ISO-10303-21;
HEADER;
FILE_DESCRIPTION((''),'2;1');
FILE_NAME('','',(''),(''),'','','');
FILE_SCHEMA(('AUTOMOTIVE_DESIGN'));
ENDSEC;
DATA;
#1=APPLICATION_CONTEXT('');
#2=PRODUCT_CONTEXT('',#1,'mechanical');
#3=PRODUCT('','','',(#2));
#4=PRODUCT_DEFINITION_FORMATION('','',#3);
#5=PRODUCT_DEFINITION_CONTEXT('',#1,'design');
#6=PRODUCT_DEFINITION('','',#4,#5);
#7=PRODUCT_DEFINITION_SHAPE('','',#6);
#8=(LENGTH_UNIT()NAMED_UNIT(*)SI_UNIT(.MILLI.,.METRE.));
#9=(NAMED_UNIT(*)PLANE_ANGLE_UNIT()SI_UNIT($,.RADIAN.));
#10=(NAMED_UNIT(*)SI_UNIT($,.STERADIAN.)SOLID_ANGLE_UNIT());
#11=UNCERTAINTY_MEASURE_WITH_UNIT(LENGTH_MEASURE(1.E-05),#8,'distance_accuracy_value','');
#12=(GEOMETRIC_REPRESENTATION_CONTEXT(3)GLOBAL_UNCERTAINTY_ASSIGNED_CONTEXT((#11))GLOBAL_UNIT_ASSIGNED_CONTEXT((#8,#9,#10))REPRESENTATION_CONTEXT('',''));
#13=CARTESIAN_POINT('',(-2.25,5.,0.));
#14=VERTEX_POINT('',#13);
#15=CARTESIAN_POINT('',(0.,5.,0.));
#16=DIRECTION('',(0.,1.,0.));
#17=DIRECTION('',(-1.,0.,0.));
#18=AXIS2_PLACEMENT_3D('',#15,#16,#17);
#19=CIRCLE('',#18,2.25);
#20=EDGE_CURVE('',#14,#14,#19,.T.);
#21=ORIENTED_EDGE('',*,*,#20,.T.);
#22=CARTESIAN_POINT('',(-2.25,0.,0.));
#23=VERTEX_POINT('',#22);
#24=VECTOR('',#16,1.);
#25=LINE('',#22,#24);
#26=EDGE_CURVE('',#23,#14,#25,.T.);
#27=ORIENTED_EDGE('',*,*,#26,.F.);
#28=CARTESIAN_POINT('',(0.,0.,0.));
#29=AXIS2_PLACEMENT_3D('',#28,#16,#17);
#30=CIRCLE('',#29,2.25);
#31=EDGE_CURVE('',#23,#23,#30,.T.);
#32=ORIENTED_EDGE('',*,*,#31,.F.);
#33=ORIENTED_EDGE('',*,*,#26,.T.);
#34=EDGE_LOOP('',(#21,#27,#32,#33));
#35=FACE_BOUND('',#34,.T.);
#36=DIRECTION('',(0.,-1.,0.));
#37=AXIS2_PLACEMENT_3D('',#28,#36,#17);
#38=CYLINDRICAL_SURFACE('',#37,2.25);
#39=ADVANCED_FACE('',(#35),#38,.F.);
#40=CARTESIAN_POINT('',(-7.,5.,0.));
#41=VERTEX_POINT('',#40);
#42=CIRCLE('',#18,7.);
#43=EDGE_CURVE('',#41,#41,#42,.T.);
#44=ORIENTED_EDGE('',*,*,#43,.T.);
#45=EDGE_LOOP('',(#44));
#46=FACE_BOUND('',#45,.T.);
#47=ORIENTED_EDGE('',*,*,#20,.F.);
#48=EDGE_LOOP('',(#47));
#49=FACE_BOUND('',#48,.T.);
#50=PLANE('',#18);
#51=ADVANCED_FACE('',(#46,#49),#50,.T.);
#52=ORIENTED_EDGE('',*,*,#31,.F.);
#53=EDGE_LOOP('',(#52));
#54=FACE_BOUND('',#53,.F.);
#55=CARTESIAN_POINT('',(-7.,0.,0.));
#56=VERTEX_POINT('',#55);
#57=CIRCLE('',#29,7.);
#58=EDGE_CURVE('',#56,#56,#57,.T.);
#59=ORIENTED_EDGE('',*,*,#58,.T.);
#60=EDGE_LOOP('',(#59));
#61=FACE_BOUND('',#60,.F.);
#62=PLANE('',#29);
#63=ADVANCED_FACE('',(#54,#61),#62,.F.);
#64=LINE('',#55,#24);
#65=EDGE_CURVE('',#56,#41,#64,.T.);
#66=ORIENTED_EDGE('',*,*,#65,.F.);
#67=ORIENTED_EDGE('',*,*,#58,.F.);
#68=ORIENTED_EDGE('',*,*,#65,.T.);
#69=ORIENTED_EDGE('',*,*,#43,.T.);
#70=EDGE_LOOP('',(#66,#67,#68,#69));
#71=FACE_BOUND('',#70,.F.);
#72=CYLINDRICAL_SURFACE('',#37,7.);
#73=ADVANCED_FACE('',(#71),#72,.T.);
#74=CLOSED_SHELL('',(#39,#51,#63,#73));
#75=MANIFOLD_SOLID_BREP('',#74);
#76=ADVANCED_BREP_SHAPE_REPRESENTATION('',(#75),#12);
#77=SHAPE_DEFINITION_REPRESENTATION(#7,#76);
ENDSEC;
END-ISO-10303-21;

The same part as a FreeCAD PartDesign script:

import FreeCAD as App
import Part
import Sketcher

V = App.Vector

doc = App.newDocument("Part")
body = doc.addObject("PartDesign::Body", "Body")

# Sketch on XZ plane
sketch1 = body.newObject("Sketcher::SketchObject", "Sketch")
sketch1.AttachmentSupport = (doc.getObject("XZ_Plane"), [""])
sketch1.MapMode = "FlatFace"
sketch1.addGeometry(Part.Circle(V(0, 0, 0), V(0, 0, 1), 7), False)
sketch1.addGeometry(Part.Circle(V(0, 0, 0), V(0, 0, 1), 2.25), False)
sketch1.addConstraint(Sketcher.Constraint("Coincident", 0, 3, -1, 1))
sketch1.addConstraint(Sketcher.Constraint("Coincident", 1, 3, -1, 1))
sketch1.addConstraint(Sketcher.Constraint("Diameter", 0, 14.0))
sketch1.addConstraint(Sketcher.Constraint("Diameter", 1, 4.5))
pad1 = body.newObject("PartDesign::Pad", "Pad")
pad1.Profile = sketch1
pad1.Length = 5
pad1.Reversed = True

doc.recompute()
